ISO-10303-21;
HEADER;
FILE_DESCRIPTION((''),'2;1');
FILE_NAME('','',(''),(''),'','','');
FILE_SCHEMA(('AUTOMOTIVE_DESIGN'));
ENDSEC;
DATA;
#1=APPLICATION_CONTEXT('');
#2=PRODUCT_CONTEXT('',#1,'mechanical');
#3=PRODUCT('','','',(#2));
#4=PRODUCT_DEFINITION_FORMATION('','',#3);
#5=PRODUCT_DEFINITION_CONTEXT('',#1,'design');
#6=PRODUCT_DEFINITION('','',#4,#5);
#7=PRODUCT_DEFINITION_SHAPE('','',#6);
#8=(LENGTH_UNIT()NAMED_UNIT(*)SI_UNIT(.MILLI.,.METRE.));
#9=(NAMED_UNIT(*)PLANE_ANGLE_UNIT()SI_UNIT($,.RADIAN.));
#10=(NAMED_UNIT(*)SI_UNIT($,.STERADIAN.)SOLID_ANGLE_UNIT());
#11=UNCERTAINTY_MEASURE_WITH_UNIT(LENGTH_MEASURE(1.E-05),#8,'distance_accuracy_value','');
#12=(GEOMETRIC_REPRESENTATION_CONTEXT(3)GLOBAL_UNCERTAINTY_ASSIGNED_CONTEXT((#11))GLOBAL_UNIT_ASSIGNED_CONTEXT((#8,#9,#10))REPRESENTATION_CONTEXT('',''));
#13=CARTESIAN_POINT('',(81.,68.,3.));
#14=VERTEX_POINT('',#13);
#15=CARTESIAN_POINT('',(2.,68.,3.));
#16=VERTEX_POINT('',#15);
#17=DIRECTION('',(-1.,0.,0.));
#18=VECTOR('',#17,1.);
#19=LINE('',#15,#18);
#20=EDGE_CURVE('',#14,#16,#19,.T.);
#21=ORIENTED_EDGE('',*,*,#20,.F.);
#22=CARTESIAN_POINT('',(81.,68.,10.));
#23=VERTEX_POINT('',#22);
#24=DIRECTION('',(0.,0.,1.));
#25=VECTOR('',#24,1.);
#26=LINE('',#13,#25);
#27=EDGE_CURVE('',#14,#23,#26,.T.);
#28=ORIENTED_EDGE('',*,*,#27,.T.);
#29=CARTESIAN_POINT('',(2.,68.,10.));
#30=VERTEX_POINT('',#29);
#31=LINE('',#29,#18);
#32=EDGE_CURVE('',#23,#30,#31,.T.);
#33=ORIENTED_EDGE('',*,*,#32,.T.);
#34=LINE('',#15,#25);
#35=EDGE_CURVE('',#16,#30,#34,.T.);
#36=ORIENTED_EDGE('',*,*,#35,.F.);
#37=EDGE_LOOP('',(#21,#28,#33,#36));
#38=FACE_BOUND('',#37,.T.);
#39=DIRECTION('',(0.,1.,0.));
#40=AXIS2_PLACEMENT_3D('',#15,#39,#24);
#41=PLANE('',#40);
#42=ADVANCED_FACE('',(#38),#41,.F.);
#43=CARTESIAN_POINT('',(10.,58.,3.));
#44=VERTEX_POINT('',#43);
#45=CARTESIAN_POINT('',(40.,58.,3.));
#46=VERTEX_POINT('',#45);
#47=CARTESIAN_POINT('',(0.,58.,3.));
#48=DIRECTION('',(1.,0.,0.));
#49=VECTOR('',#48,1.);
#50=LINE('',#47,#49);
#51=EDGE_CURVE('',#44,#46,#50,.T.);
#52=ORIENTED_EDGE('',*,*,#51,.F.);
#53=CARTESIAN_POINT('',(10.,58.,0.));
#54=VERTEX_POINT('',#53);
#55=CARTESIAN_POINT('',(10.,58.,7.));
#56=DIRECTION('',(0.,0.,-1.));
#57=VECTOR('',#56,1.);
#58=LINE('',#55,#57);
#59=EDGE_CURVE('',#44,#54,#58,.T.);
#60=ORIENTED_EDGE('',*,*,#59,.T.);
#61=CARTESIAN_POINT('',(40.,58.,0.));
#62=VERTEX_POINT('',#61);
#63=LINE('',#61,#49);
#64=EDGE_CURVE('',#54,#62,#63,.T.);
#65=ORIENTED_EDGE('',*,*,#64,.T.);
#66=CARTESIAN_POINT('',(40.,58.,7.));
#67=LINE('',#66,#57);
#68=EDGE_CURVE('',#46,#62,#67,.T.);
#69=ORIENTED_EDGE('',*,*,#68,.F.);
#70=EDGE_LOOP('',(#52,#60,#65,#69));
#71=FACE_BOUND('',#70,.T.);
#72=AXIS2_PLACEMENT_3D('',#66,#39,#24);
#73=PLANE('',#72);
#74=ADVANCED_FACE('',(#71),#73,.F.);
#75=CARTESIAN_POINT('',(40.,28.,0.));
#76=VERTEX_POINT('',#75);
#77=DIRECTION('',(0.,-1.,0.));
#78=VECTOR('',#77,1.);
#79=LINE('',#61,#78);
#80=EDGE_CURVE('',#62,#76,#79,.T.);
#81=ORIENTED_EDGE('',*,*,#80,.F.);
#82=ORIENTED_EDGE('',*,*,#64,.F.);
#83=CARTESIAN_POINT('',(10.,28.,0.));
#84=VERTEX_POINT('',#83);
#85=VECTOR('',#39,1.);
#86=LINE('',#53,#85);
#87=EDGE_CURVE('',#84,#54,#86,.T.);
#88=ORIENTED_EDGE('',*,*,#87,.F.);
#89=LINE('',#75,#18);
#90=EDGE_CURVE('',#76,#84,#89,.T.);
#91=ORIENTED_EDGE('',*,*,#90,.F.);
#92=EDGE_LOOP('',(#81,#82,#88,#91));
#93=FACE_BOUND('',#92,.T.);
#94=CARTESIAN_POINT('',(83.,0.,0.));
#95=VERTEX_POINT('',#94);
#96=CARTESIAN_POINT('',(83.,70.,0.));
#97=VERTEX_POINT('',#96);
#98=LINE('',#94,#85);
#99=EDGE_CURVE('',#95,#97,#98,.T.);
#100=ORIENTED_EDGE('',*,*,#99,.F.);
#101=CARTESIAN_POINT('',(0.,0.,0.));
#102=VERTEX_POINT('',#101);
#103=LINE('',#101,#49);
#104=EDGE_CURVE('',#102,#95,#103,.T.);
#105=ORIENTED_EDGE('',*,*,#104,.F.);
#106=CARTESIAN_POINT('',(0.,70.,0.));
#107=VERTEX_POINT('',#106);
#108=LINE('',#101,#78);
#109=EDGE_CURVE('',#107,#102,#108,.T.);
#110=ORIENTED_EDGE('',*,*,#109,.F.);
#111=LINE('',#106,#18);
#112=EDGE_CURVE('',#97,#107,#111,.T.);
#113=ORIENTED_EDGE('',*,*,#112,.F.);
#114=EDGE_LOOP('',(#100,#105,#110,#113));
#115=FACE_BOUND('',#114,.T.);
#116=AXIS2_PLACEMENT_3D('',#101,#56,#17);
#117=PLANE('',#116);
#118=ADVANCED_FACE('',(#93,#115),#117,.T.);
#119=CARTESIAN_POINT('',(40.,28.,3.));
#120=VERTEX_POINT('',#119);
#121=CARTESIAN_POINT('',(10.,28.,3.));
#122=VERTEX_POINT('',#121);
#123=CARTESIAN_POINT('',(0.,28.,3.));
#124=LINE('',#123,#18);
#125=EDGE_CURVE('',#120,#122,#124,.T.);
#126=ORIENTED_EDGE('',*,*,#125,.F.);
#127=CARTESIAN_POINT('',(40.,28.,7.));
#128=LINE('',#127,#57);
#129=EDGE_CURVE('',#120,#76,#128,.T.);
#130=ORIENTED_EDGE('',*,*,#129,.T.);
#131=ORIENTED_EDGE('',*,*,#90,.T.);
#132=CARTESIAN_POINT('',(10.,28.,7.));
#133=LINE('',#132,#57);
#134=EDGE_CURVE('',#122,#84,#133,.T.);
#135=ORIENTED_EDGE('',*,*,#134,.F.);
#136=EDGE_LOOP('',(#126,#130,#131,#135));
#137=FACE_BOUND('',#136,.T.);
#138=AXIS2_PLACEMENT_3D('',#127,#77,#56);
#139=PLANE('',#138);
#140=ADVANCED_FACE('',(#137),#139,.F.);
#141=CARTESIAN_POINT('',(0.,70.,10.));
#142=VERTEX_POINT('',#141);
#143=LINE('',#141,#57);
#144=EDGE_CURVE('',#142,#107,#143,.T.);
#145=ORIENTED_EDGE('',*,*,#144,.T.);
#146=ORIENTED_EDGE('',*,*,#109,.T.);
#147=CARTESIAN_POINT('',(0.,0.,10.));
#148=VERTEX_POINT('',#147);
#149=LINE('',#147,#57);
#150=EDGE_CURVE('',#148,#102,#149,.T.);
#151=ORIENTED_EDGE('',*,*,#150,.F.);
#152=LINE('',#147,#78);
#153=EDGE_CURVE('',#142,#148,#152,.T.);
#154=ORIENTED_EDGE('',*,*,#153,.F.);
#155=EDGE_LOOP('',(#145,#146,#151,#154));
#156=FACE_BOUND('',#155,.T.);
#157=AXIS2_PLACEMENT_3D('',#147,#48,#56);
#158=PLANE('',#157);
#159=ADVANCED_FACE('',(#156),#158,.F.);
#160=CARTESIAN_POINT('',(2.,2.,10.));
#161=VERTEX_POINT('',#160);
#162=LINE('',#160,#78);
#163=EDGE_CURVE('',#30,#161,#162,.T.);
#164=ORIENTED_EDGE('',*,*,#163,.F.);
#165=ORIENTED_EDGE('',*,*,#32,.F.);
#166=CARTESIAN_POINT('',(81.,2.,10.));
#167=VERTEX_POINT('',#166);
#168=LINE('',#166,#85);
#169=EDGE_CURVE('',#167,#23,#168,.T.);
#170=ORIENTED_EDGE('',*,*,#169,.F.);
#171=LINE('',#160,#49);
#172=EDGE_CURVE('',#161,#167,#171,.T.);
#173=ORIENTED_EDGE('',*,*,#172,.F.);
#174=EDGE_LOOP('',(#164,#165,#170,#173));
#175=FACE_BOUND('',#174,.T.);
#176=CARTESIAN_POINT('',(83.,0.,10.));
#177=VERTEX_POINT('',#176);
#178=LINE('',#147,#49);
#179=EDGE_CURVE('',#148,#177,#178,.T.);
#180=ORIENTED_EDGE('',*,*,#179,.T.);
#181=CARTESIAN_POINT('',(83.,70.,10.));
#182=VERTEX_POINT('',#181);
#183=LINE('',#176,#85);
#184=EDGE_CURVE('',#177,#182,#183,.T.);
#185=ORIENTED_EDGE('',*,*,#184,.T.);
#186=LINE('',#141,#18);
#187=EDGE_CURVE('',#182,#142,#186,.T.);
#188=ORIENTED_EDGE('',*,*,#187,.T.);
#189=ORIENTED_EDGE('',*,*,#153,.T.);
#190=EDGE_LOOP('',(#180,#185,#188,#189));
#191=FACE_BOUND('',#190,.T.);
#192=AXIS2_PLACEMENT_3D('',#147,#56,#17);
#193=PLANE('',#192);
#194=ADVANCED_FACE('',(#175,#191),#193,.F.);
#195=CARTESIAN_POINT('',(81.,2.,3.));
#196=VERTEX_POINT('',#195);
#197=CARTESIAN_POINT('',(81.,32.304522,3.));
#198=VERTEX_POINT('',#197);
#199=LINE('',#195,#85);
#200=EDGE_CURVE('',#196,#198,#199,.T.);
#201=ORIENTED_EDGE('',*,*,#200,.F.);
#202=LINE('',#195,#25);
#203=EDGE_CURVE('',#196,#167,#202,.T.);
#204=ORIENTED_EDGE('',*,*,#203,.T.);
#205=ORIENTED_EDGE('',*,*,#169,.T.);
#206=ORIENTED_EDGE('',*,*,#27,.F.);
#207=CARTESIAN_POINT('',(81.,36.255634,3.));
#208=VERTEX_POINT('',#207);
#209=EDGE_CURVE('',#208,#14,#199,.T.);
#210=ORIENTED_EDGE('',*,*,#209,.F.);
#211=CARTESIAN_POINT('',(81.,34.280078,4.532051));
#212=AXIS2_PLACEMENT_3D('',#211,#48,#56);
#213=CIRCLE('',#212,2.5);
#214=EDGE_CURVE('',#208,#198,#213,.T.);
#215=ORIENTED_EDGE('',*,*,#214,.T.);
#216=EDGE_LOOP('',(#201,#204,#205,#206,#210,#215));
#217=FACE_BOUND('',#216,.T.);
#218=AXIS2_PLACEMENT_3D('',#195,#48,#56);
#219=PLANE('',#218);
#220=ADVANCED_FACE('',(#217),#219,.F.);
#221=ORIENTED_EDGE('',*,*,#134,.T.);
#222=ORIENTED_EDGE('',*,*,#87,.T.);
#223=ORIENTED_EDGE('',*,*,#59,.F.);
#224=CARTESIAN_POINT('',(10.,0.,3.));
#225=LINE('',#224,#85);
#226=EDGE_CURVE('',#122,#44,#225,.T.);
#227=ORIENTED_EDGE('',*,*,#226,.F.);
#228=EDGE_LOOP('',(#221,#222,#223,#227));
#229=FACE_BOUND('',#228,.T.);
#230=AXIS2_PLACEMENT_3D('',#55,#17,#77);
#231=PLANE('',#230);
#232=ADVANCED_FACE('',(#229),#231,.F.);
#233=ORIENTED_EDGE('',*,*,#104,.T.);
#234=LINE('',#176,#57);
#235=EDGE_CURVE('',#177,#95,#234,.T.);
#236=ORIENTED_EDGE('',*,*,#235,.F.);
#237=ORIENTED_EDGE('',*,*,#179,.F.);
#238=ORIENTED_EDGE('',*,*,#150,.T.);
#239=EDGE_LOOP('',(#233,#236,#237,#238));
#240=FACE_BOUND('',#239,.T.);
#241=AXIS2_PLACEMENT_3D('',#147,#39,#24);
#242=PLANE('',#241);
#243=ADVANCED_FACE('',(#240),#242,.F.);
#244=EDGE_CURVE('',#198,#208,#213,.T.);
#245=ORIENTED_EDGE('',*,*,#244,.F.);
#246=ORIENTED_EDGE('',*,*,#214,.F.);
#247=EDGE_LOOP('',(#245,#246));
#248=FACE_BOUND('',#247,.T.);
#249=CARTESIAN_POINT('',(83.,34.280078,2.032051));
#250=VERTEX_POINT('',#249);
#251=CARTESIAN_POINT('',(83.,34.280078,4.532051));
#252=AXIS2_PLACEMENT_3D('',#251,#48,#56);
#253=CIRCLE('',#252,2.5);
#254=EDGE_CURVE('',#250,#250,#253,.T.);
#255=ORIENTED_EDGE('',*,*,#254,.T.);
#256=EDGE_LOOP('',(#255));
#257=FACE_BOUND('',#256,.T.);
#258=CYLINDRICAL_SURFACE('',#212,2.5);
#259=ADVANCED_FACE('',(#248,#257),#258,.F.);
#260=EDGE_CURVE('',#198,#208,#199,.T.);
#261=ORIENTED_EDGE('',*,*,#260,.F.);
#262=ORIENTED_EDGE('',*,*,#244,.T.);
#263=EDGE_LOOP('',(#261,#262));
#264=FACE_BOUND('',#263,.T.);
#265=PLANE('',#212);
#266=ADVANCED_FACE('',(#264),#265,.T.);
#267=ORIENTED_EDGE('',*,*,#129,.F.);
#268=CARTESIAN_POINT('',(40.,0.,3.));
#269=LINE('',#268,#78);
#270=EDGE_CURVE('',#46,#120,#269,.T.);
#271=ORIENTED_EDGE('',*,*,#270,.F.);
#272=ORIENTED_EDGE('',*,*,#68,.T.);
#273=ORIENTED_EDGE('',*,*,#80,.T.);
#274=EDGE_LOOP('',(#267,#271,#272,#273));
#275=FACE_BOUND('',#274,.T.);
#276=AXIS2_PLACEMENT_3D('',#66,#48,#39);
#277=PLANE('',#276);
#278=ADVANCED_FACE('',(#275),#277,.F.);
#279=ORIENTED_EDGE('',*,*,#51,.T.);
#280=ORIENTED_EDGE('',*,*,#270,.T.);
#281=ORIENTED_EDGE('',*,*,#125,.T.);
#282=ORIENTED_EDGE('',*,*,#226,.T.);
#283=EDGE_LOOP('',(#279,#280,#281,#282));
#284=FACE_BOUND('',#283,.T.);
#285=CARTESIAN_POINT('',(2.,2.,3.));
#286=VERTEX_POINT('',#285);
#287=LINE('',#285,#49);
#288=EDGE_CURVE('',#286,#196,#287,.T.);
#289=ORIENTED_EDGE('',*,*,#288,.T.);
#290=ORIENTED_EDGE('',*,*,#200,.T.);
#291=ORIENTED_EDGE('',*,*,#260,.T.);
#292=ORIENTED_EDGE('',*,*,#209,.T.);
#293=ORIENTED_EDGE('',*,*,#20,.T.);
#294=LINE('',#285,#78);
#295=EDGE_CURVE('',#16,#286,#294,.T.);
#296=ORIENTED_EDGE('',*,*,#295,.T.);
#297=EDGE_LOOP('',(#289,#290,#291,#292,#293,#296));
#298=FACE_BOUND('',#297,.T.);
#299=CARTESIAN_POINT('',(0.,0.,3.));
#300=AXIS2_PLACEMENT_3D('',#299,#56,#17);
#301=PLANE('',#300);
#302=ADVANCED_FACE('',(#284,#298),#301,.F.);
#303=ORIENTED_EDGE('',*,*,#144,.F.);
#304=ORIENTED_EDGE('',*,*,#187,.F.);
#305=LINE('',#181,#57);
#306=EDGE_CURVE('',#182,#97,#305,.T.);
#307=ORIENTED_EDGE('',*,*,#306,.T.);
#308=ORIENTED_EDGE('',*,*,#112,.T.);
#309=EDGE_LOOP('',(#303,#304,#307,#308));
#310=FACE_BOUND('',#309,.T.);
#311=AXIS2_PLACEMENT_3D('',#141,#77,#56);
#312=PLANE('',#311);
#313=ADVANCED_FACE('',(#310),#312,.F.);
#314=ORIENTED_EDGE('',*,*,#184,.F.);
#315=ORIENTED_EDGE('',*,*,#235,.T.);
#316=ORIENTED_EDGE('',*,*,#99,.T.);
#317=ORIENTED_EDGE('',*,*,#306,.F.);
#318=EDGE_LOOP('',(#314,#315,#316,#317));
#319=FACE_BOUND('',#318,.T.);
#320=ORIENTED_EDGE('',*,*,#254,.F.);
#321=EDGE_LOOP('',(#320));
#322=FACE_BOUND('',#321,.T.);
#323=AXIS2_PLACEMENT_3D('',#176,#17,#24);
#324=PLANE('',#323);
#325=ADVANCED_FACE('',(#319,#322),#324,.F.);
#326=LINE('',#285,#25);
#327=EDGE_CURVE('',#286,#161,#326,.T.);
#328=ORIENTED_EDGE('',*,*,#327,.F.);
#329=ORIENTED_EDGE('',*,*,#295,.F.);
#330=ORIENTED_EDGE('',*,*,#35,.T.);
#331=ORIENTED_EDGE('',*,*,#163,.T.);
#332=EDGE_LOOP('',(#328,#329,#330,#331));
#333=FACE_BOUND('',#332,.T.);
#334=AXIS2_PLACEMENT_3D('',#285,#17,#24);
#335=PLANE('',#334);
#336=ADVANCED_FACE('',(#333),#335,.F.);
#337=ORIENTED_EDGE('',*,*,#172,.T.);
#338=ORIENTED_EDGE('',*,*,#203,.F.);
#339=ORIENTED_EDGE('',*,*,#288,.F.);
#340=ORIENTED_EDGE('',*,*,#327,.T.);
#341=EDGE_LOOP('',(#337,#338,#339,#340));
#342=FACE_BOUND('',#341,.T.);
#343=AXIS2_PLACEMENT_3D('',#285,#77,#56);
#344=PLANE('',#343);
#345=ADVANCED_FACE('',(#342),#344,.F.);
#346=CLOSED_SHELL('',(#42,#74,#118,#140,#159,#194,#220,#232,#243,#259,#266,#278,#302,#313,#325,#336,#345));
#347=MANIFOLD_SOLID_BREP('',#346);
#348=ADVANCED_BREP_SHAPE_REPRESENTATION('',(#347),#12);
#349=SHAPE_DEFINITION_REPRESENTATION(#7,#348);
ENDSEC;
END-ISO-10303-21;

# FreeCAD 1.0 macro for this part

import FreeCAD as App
import Part
import Sketcher
from FreeCAD import Vector
Q = App.Units.Quantity

doc = App.newDocument("Part")
body = doc.addObject("PartDesign::Body", "Body")

# Sketch on XY plane
sketch1 = body.newObject("Sketcher::SketchObject", "Sketch")
sketch1.AttachmentSupport = (doc.getObject("XY_Plane"), [""])
sketch1.MapMode = "FlatFace"
sketch1.addGeometry([
    Part.LineSegment(Vector(0, 70, 0), Vector(0, 0, 0)),
    Part.LineSegment(Vector(0, 0, 0), Vector(83, 0, 0)),
    Part.LineSegment(Vector(83, 0, 0), Vector(83, 70, 0)),
    Part.LineSegment(Vector(83, 70, 0), Vector(0, 70, 0)),
], False)
sketch1.addConstraint([
    Sketcher.Constraint("Coincident", 0, 2, 1, 1),
    Sketcher.Constraint("Coincident", 1, 2, 2, 1),
    Sketcher.Constraint("Coincident", 2, 2, 3, 1),
    Sketcher.Constraint("Coincident", 3, 2, 0, 1),
    Sketcher.Constraint("Vertical", 0),
    Sketcher.Constraint("Horizontal", 1),
    Sketcher.Constraint("Vertical", 2),
    Sketcher.Constraint("Horizontal", 3),
    Sketcher.Constraint("Coincident", 0, 2, -1, 1),
    Sketcher.Constraint("DistanceX", 1, 1, 1, 2, Q("83 mm")),
    Sketcher.Constraint("DistanceY", 0, 2, 0, 1, Q("70 mm")),
])
pad1 = body.newObject("PartDesign::Pad", "Pad")
pad1.Profile = sketch1
pad1.Length = 10

# Sketch on XY plane
sketch2 = body.newObject("Sketcher::SketchObject", "Sketch001")
sketch2.AttachmentSupport = (doc.getObject("XY_Plane"), [""])
sketch2.MapMode = "FlatFace"
sketch2.AttachmentOffset = App.Placement(Vector(0, 0, 10), App.Rotation())
sketch2.addGeometry([
    Part.LineSegment(Vector(2, 68, 0), Vector(2, 2, 0)),
    Part.LineSegment(Vector(2, 2, 0), Vector(81, 2, 0)),
    Part.LineSegment(Vector(81, 2, 0), Vector(81, 68, 0)),
    Part.LineSegment(Vector(81, 68, 0), Vector(2, 68, 0)),
], False)
sketch2.addConstraint([
    Sketcher.Constraint("Coincident", 0, 2, 1, 1),
    Sketcher.Constraint("Coincident", 1, 2, 2, 1),
    Sketcher.Constraint("Coincident", 2, 2, 3, 1),
    Sketcher.Constraint("Coincident", 3, 2, 0, 1),
    Sketcher.Constraint("Vertical", 0),
    Sketcher.Constraint("Horizontal", 1),
    Sketcher.Constraint("Vertical", 2),
    Sketcher.Constraint("Horizontal", 3),
    Sketcher.Constraint("DistanceX", 1, 1, 1, 2, Q("79 mm")),
    Sketcher.Constraint("DistanceY", 0, 2, 0, 1, Q("66 mm")),
    Sketcher.Constraint("DistanceX", -1, 1, 0, 2, Q("2 mm")),
    Sketcher.Constraint("DistanceY", -1, 1, 0, 2, Q("2 mm")),
])
pocket1 = body.newObject("PartDesign::Pocket", "Pocket")
pocket1.Profile = sketch2
pocket1.Length = 7

# Sketch on XY plane
sketch3 = body.newObject("Sketcher::SketchObject", "Sketch002")
sketch3.AttachmentSupport = (doc.getObject("XY_Plane"), [""])
sketch3.MapMode = "FlatFace"
sketch3.addGeometry([
    Part.LineSegment(Vector(40, 58, 0), Vector(40, 28, 0)),
    Part.LineSegment(Vector(40, 28, 0), Vector(10, 28, 0)),
    Part.LineSegment(Vector(10, 28, 0), Vector(10, 58, 0)),
    Part.LineSegment(Vector(10, 58, 0), Vector(40, 58, 0)),
], False)
sketch3.addConstraint([
    Sketcher.Constraint("Coincident", 0, 2, 1, 1),
    Sketcher.Constraint("Coincident", 1, 2, 2, 1),
    Sketcher.Constraint("Coincident", 2, 2, 3, 1),
    Sketcher.Constraint("Coincident", 3, 2, 0, 1),
    Sketcher.Constraint("Vertical", 0),
    Sketcher.Constraint("Horizontal", 1),
    Sketcher.Constraint("Vertical", 2),
    Sketcher.Constraint("Horizontal", 3),
    Sketcher.Constraint("Equal", 3, 0),
    Sketcher.Constraint("DistanceX", 1, 2, 1, 1, Q("30 mm")),
    Sketcher.Constraint("DistanceX", -1, 1, 0, 2, Q("40 mm")),
    Sketcher.Constraint("DistanceY", -1, 1, 0, 2, Q("28 mm")),
])
pocket2 = body.newObject("PartDesign::Pocket", "Pocket001")
pocket2.Profile = sketch3
pocket2.Length = 7
pocket2.Reversed = True

# Sketch on YZ plane
sketch4 = body.newObject("Sketcher::SketchObject", "Sketch003")
sketch4.AttachmentSupport = (doc.getObject("YZ_Plane"), [""])
sketch4.MapMode = "FlatFace"
sketch4.AttachmentOffset = App.Placement(Vector(0, 0, 83), App.Rotation())
sketch4.addGeometry(Part.Circle(Vector(34.3, 4.5, 0), Vector(0, 0, 1), 2.5), False)
sketch4.addConstraint([
    Sketcher.Constraint("Diameter", 0, Q("5 mm")),
    Sketcher.Constraint("DistanceY", -1, 1, 0, 3, Q("4.532051 mm")),
    Sketcher.Constraint("DistanceX", -1, 1, 0, 3, Q("34.280078 mm")),
])
pocket3 = body.newObject("PartDesign::Pocket", "Pocket002")
pocket3.Profile = sketch4
pocket3.Length = 2

doc.recompute()
